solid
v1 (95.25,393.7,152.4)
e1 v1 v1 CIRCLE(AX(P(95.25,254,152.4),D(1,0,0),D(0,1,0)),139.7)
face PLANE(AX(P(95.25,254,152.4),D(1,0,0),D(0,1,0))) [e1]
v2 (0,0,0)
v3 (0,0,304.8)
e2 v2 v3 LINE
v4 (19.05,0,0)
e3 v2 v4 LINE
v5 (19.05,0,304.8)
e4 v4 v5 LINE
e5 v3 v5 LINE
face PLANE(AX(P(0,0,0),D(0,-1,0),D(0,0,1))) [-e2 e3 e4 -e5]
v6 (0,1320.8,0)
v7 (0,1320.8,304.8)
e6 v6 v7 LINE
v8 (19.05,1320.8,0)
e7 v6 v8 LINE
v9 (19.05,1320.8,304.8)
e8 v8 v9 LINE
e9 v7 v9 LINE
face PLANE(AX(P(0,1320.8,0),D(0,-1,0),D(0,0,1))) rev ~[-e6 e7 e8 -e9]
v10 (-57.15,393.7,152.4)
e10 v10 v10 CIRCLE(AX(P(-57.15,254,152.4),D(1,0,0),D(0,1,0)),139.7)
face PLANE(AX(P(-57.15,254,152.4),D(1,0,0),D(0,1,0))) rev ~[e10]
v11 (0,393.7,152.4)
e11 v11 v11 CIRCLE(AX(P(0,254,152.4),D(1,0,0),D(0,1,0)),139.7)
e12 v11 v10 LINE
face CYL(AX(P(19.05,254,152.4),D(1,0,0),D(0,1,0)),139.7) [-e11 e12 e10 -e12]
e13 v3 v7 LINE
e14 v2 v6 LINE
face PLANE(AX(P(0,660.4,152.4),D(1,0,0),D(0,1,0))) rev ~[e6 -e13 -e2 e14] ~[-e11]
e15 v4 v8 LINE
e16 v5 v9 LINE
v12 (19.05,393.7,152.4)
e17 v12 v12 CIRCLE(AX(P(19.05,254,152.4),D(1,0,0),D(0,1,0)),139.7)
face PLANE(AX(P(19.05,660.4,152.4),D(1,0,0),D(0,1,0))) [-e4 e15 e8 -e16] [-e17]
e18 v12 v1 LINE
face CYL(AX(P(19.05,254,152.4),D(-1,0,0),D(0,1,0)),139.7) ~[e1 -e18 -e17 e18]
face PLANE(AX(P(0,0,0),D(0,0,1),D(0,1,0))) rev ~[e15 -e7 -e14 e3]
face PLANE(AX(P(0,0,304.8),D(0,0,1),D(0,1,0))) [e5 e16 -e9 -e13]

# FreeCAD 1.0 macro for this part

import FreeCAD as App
import Part
import Sketcher

V = App.Vector
Q = App.Units.Quantity

doc = App.newDocument("Part")
params = doc.addObject("Spreadsheet::Sheet", "Params")
for row, (alias, value) in enumerate([
    ("sketch1_width", "52 in"),
    ("sketch1_height", "12 in"),
    ("pad1_length", "0.75 in"),
    ("sketch2_diameter", "11 in"),
    ("pad2_length", "3 in"),
    ("pad2_length2", "3 in"),
], start=1):
    params.set(f"A{row}", alias)
    params.set(f"B{row}", "=" + value)
    params.setAlias(f"B{row}", alias)

body = doc.addObject("PartDesign::Body", "Body")

sketch1 = body.newObject("Sketcher::SketchObject", "Sketch")
sketch1.AttachmentSupport = (doc.getObject("YZ_Plane"), [""])
sketch1.MapMode = "FlatFace"
sketch1.addGeometry([
    Part.LineSegment(V(0, 305, 0), V(0, 0, 0)),
    Part.LineSegment(V(0, 0, 0), V(1321, 0, 0)),
    Part.LineSegment(V(1321, 0, 0), V(1321, 305, 0)),
    Part.LineSegment(V(1321, 305, 0), V(0, 305, 0)),
], False)
sketch1.addConstraint([
    Sketcher.Constraint("Coincident", 0, 2, 1, 1),
    Sketcher.Constraint("Coincident", 1, 2, 2, 1),
    Sketcher.Constraint("Coincident", 2, 2, 3, 1),
    Sketcher.Constraint("Coincident", 3, 2, 0, 1),
    Sketcher.Constraint("Vertical", 0),
    Sketcher.Constraint("Horizontal", 1),
    Sketcher.Constraint("Vertical", 2),
    Sketcher.Constraint("Horizontal", 3),
    Sketcher.Constraint("Coincident", 0, 2, -1, 1),
    Sketcher.Constraint("DistanceX", 1, 1, 1, 2, Q("52 in")),
    Sketcher.Constraint("DistanceY", 0, 2, 0, 1, Q("12 in")),
])
sketch1.setExpression("Constraints[9]", "Params.sketch1_width")
sketch1.setExpression("Constraints[10]", "Params.sketch1_height")
pad1 = body.newObject("PartDesign::Pad", "Pad")
pad1.Profile = sketch1
pad1.setExpression("Length", "Params.pad1_length")

sketch2 = body.newObject("Sketcher::SketchObject", "Sketch001")
sketch2.AttachmentSupport = (doc.getObject("YZ_Plane"), [""])
sketch2.MapMode = "FlatFace"
sketch2.AttachmentOffset = App.Placement(V(0, 0, 0.75 * 25.4), App.Rotation())
sketch2.addGeometry(Part.Circle(V(254, 152, 0), V(0, 0, 1), 140), False)
sketch2.addConstraint([
    Sketcher.Constraint("Diameter", 0, Q("11 in")),
    Sketcher.Constraint("DistanceX", -1, 1, 0, 3, Q("10 in")),
    Sketcher.Constraint("DistanceY", -1, 1, 0, 3, Q("6 in")),
])
sketch2.setExpression("Constraints[0]", "Params.sketch2_diameter")
pad2 = body.newObject("PartDesign::Pad", "Pad001")
pad2.Profile = sketch2
pad2.Type = "TwoLengths"
pad2.setExpression("Length", "Params.pad2_length")
pad2.setExpression("Length2", "Params.pad2_length2")

doc.recompute()
